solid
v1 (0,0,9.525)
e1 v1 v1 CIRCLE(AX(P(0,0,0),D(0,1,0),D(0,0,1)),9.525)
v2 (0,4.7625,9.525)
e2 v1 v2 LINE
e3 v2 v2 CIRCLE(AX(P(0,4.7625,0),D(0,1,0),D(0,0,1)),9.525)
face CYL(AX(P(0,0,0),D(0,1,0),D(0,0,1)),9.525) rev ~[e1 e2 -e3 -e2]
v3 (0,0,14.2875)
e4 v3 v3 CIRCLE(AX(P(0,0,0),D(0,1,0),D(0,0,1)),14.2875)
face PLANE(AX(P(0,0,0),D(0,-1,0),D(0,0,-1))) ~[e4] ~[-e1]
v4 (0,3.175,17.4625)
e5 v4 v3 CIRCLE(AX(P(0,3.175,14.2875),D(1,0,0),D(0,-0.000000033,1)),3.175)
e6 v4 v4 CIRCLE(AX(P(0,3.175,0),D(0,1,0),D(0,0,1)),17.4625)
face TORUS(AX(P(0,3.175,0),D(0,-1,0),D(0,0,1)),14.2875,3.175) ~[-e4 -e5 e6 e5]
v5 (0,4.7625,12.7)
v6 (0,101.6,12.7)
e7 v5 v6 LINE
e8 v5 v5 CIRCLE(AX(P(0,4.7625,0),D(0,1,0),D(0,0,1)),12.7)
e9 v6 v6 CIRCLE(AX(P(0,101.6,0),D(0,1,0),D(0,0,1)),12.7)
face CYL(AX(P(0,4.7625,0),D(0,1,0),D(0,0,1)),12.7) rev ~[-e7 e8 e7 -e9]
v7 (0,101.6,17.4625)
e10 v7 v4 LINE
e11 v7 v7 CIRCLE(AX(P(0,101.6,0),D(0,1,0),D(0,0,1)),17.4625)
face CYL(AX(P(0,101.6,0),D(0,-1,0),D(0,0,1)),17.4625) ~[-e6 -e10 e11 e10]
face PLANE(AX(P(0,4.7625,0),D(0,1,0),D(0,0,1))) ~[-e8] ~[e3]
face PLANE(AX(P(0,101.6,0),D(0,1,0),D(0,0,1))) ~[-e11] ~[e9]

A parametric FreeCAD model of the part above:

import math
import FreeCAD as App
import Part
import Sketcher
Q = App.Units.Quantity

doc = App.newDocument("Part")
params = doc.addObject("Spreadsheet::Sheet", "Params")
for row, (alias, value) in enumerate([
    ("sketch1_radius", "0.125 in"),
    ("sketch1_width", "3.8125 in"),
    ("revolution_angle", "360 deg"),
], start=1):
    params.set(f"A{row}", alias)
    params.set(f"B{row}", "=" + value)
    params.setAlias(f"B{row}", alias)

body = doc.addObject("PartDesign::Body", "Body")

# Sketch on YZ plane
sketch1 = body.newObject("Sketcher::SketchObject", "Sketch")
sketch1.AttachmentSupport = (doc.getObject("YZ_Plane"), [""])
sketch1.MapMode = "FlatFace"
sketch1.addGeometry(Part.LineSegment(App.Vector(4.8, 9.5, 0), App.Vector(4.8, 12.7, 0)), False)
sketch1.addGeometry(Part.LineSegment(App.Vector(4.8, 12.7, 0), App.Vector(101.6, 12.7, 0)), False)
sketch1.addGeometry(Part.LineSegment(App.Vector(101.6, 12.7, 0), App.Vector(101.6, 17.5, 0)), False)
sketch1.addGeometry(Part.LineSegment(App.Vector(101.6, 17.5, 0), App.Vector(3.2, 17.5, 0)), False)
sketch1.addGeometry(Part.ArcOfCircle(Part.Circle(App.Vector(3.2, 14.3, 0), App.Vector(0, 0, 1), 3.2), math.radians(90), math.radians(180)), False)
sketch1.addGeometry(Part.LineSegment(App.Vector(0, 14.3, 0), App.Vector(0, 9.5, 0)), False)
sketch1.addGeometry(Part.LineSegment(App.Vector(0, 9.5, 0), App.Vector(4.8, 9.5, 0)), False)
sketch1.addConstraint(Sketcher.Constraint("Coincident", 0, 2, 1, 1))
sketch1.addConstraint(Sketcher.Constraint("Coincident", 1, 2, 2, 1))
sketch1.addConstraint(Sketcher.Constraint("Coincident", 2, 2, 3, 1))
sketch1.addConstraint(Sketcher.Constraint("Tangent", 3, 2, 4, 1))
sketch1.addConstraint(Sketcher.Constraint("Tangent", 4, 2, 5, 1))
sketch1.addConstraint(Sketcher.Constraint("Coincident", 5, 2, 6, 1))
sketch1.addConstraint(Sketcher.Constraint("Coincident", 6, 2, 0, 1))
sketch1.addConstraint(Sketcher.Constraint("Vertical", 0))
sketch1.addConstraint(Sketcher.Constraint("Horizontal", 1))
sketch1.addConstraint(Sketcher.Constraint("Vertical", 2))
sketch1.addConstraint(Sketcher.Constraint("Horizontal", 3))
sketch1.addConstraint(Sketcher.Constraint("Vertical", 5))
sketch1.addConstraint(Sketcher.Constraint("Horizontal", 6))
sketch1.addConstraint(Sketcher.Constraint("PointOnObject", 4, 2, -2))
sketch1.addConstraint(Sketcher.Constraint("Equal", 6, 2))
sketch1.addConstraint(Sketcher.Constraint("Equal", 2, 5))
sketch1.addConstraint(Sketcher.Constraint("DistanceX", -1, 1, 1, 2, Q("4 in")))
sketch1.addConstraint(Sketcher.Constraint("Radius", 4, Q("0.125 in")))
sketch1.addConstraint(Sketcher.Constraint("DistanceY", -1, 1, 0, 2, Q("0.5 in")))
sketch1.addConstraint(Sketcher.Constraint("DistanceX", 1, 1, 1, 2, Q("3.8125 in")))
sketch1.setExpression("Constraints[17]", "Params.sketch1_radius")
sketch1.setExpression("Constraints[19]", "Params.sketch1_width")
revolution = body.newObject("PartDesign::Revolution", "Revolution")
revolution.Profile = sketch1
revolution.ReferenceAxis = (sketch1, ["H_Axis"])
revolution.setExpression("Angle", "Params.revolution_angle")

doc.recompute()
